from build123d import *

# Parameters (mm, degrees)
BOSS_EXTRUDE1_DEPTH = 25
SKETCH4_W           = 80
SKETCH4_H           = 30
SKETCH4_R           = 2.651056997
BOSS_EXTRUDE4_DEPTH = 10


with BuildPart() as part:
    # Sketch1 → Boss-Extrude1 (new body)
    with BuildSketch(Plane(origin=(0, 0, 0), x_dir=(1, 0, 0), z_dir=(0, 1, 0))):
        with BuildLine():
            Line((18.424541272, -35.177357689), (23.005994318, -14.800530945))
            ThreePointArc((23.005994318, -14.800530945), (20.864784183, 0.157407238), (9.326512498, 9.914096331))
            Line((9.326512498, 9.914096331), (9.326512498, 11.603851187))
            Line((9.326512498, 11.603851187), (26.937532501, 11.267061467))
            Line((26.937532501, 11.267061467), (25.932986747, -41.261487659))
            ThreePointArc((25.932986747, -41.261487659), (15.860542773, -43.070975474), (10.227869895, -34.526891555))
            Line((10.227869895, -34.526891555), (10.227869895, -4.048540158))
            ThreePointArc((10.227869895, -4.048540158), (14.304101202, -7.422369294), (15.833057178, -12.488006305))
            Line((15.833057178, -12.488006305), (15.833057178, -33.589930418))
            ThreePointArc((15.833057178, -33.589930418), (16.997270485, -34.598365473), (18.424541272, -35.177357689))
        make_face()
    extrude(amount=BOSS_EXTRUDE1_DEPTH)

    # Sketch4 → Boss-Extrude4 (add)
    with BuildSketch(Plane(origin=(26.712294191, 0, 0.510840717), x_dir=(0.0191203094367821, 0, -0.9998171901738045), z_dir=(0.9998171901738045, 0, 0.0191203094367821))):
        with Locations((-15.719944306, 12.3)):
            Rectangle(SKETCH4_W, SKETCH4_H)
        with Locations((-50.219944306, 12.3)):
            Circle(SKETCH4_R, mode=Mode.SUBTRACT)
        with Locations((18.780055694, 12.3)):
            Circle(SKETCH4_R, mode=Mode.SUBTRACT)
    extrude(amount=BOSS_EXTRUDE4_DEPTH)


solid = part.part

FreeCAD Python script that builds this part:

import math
import FreeCAD as App
import Part
import Sketcher


def add_polygon(sketch, points):
    """Adds a closed chain of lines whose ends are joined by coincident constraints."""
    first, n = sketch.GeometryCount, len(points)
    for a, b in zip(points, points[1:] + points[:1]):
        sketch.addGeometry(Part.LineSegment(App.Vector(*a, 0), App.Vector(*b, 0)), False)
    for i in range(n):
        sketch.addConstraint(Sketcher.Constraint("Coincident", first + i, 2, first + (i + 1) % n, 1))

doc = App.newDocument("Part")
params = doc.addObject("Spreadsheet::Sheet", "Params")
for row, (alias, value) in enumerate([
    ("pad1_length", "25 mm"),
    ("sketch2_width", "80 mm"),
    ("sketch2_height", "30 mm"),
    ("pad2_length", "10 mm"),
], start=1):
    params.set(f"A{row}", alias)
    params.set(f"B{row}", "=" + value)
    params.setAlias(f"B{row}", alias)

body = doc.addObject("PartDesign::Body", "Body")

# Sketch on XZ plane
sketch1 = body.newObject("Sketcher::SketchObject", "Sketch")
sketch1.AttachmentSupport = (doc.getObject("XZ_Plane"), [""])
sketch1.MapMode = "FlatFace"
sketch1.addGeometry(Part.LineSegment(App.Vector(23.005994, 14.800531, 0), App.Vector(18.424541, 35.177358, 0)), False)
sketch1.addGeometry(Part.ArcOfCircle(Part.Circle(App.Vector(19.457878, 30.58141, 0), App.Vector(0, 0, 1), 4.710681), math.radians(102.671463), math.radians(140.308082)), False)
sketch1.addGeometry(Part.LineSegment(App.Vector(15.833057, 33.58993, 0), App.Vector(15.833057, 12.488006, 0)), False)
sketch1.addGeometry(Part.ArcOfCircle(Part.Circle(App.Vector(6.67701, 12.488006, 0), App.Vector(0, 0, 1), 9.156047), math.radians(-67.181341), math.radians(0)), False)
sketch1.addGeometry(Part.LineSegment(App.Vector(10.22787, 4.04854, 0), App.Vector(10.22787, 34.526892, 0)), False)
sketch1.addGeometry(Part.ArcOfCircle(Part.Circle(App.Vector(19.524378, 34.526892, 0), App.Vector(0, 0, 1), 9.296508), math.radians(46.420799), math.radians(180)), False)
sketch1.addGeometry(Part.LineSegment(App.Vector(25.932987, 41.261488, 0), App.Vector(26.937533, -11.267061, 0)), False)
sketch1.addGeometry(Part.LineSegment(App.Vector(26.937533, -11.267061, 0), App.Vector(9.326512, -11.603851, 0)), False)
sketch1.addGeometry(Part.LineSegment(App.Vector(9.326512, -11.603851, 0), App.Vector(9.326512, -9.914096, 0)), False)
sketch1.addGeometry(Part.ArcOfCircle(Part.Circle(App.Vector(2.265418, 10.137294, 0), App.Vector(0, 0, 1), 21.258347), math.radians(-70.60029), math.radians(12.671463)), False)
sketch1.addConstraint(Sketcher.Constraint("Coincident", 0, 2, 1, 1))
sketch1.addConstraint(Sketcher.Constraint("Coincident", 1, 2, 2, 1))
sketch1.addConstraint(Sketcher.Constraint("Tangent", 2, 2, 3, 2))
sketch1.addConstraint(Sketcher.Constraint("Coincident", 3, 1, 4, 1))
sketch1.addConstraint(Sketcher.Constraint("Tangent", 4, 2, 5, 2))
sketch1.addConstraint(Sketcher.Constraint("Coincident", 5, 1, 6, 1))
sketch1.addConstraint(Sketcher.Constraint("Coincident", 6, 2, 7, 1))
sketch1.addConstraint(Sketcher.Constraint("Coincident", 7, 2, 8, 1))
sketch1.addConstraint(Sketcher.Constraint("Coincident", 8, 2, 9, 1))
sketch1.addConstraint(Sketcher.Constraint("Tangent", 9, 2, 0, 1))
sketch1.addConstraint(Sketcher.Constraint("Vertical", 2))
sketch1.addConstraint(Sketcher.Constraint("Vertical", 4))
sketch1.addConstraint(Sketcher.Constraint("Vertical", 8))
sketch1.addConstraint(Sketcher.Constraint("Perpendicular", 6, 7))
sketch1.addConstraint(Sketcher.Constraint("Radius", 1, 4.710681))
sketch1.addConstraint(Sketcher.Constraint("Radius", 3, 9.156047))
sketch1.addConstraint(Sketcher.Constraint("Radius", 5, 9.296508))
sketch1.addConstraint(Sketcher.Constraint("Radius", 9, 21.258347))
sketch1.addConstraint(Sketcher.Constraint("DistanceY", 4, 1, 4, 2, 30.478351))
sketch1.addConstraint(Sketcher.Constraint("DistanceX", 1, 3, 5, 3, 0.0665))
sketch1.addConstraint(Sketcher.Constraint("DistanceY", 6, 2, 3, 1, 15.315602))
sketch1.addConstraint(Sketcher.Constraint("Distance", 7, 17.61424))
sketch1.addConstraint(Sketcher.Constraint("DistanceY", 2, 2, 2, 1, 21.101924))
sketch1.addConstraint(Sketcher.Constraint("DistanceY", 8, 1, 8, 2, 1.689755))
sketch1.addConstraint(Sketcher.Constraint("DistanceY", -1, 1, 1, 3, 30.58141))
sketch1.addConstraint(Sketcher.Constraint("DistanceX", -1, 1, 3, 3, 6.67701))
sketch1.addConstraint(Sketcher.Constraint("DistanceY", -1, 1, 5, 3, 34.526892))
sketch1.addConstraint(Sketcher.Constraint("DistanceX", -1, 1, 0, 2, 18.424541))
sketch1.addConstraint(Sketcher.Constraint("DistanceY", 7, 2, -1, 1, 11.603851))
sketch1.addConstraint(Sketcher.Constraint("DistanceY", -1, 1, 9, 2, 14.800531))
sketch1.addConstraint(Sketcher.Constraint("DistanceX", 9, 3, 1, 3, 17.19246))
pad1 = body.newObject("PartDesign::Pad", "Pad")
pad1.Profile = sketch1
pad1.setExpression("Length", "Params.pad1_length")
pad1.Reversed = True

# Sketch on an angled plane
sketch2 = body.newObject("Sketcher::SketchObject", "Sketch001")
sketch2.Placement = App.Placement(App.Vector(26.712294, 0, 0.510841), App.Rotation(App.Vector(0.019120309, 0, -0.99981719), App.Vector(0, 1, 0), App.Vector(0.99981719, 0, 0.019120309), "ZXY"))
add_polygon(sketch2, [(-55.719944, 27.3), (-55.719944, -2.7), (24.280056, -2.7), (24.280056, 27.3)])  # lines 0-3
sketch2.addGeometry(Part.Circle(App.Vector(-50.219944, 12.3, 0), App.Vector(0, 0, 1), 2.651057), False)  # 4
sketch2.addGeometry(Part.Circle(App.Vector(18.780056, 12.3, 0), App.Vector(0, 0, 1), 2.651057), False)  # 5
sketch2.addConstraint(Sketcher.Constraint("Vertical", 0))
sketch2.addConstraint(Sketcher.Constraint("Horizontal", 1))
sketch2.addConstraint(Sketcher.Constraint("Vertical", 2))
sketch2.addConstraint(Sketcher.Constraint("Horizontal", 3))
sketch2.addConstraint(Sketcher.Constraint("Equal", 4, 5))
sketch2.addConstraint(Sketcher.Constraint("Horizontal", 4, 3, 5, 3))
sketch2.addConstraint(Sketcher.Constraint("DistanceX", 1, 1, 1, 2, 80.0))
sketch2.addConstraint(Sketcher.Constraint("DistanceY", 0, 2, 0, 1, 30.0))
sketch2.addConstraint(Sketcher.Constraint("DistanceX", 4, 3, 5, 3, 69.0))
sketch2.addConstraint(Sketcher.Constraint("DistanceY", 0, 2, 4, 3, 15.0))
sketch2.addConstraint(Sketcher.Constraint("DistanceY", -1, 1, 4, 3, 12.3))
sketch2.addConstraint(Sketcher.Constraint("DistanceX", 0, 2, 4, 3, 5.5))
sketch2.addConstraint(Sketcher.Constraint("Diameter", 4, 5.302114))
sketch2.addConstraint(Sketcher.Constraint("DistanceX", 4, 3, -1, 1, 50.219944))
sketch2.setExpression("Constraints[10]", "Params.sketch2_width")
sketch2.setExpression("Constraints[11]", "Params.sketch2_height")
pad2 = body.newObject("PartDesign::Pad", "Pad001")
pad2.Profile = sketch2
pad2.setExpression("Length", "Params.pad2_length")

doc.recompute()
